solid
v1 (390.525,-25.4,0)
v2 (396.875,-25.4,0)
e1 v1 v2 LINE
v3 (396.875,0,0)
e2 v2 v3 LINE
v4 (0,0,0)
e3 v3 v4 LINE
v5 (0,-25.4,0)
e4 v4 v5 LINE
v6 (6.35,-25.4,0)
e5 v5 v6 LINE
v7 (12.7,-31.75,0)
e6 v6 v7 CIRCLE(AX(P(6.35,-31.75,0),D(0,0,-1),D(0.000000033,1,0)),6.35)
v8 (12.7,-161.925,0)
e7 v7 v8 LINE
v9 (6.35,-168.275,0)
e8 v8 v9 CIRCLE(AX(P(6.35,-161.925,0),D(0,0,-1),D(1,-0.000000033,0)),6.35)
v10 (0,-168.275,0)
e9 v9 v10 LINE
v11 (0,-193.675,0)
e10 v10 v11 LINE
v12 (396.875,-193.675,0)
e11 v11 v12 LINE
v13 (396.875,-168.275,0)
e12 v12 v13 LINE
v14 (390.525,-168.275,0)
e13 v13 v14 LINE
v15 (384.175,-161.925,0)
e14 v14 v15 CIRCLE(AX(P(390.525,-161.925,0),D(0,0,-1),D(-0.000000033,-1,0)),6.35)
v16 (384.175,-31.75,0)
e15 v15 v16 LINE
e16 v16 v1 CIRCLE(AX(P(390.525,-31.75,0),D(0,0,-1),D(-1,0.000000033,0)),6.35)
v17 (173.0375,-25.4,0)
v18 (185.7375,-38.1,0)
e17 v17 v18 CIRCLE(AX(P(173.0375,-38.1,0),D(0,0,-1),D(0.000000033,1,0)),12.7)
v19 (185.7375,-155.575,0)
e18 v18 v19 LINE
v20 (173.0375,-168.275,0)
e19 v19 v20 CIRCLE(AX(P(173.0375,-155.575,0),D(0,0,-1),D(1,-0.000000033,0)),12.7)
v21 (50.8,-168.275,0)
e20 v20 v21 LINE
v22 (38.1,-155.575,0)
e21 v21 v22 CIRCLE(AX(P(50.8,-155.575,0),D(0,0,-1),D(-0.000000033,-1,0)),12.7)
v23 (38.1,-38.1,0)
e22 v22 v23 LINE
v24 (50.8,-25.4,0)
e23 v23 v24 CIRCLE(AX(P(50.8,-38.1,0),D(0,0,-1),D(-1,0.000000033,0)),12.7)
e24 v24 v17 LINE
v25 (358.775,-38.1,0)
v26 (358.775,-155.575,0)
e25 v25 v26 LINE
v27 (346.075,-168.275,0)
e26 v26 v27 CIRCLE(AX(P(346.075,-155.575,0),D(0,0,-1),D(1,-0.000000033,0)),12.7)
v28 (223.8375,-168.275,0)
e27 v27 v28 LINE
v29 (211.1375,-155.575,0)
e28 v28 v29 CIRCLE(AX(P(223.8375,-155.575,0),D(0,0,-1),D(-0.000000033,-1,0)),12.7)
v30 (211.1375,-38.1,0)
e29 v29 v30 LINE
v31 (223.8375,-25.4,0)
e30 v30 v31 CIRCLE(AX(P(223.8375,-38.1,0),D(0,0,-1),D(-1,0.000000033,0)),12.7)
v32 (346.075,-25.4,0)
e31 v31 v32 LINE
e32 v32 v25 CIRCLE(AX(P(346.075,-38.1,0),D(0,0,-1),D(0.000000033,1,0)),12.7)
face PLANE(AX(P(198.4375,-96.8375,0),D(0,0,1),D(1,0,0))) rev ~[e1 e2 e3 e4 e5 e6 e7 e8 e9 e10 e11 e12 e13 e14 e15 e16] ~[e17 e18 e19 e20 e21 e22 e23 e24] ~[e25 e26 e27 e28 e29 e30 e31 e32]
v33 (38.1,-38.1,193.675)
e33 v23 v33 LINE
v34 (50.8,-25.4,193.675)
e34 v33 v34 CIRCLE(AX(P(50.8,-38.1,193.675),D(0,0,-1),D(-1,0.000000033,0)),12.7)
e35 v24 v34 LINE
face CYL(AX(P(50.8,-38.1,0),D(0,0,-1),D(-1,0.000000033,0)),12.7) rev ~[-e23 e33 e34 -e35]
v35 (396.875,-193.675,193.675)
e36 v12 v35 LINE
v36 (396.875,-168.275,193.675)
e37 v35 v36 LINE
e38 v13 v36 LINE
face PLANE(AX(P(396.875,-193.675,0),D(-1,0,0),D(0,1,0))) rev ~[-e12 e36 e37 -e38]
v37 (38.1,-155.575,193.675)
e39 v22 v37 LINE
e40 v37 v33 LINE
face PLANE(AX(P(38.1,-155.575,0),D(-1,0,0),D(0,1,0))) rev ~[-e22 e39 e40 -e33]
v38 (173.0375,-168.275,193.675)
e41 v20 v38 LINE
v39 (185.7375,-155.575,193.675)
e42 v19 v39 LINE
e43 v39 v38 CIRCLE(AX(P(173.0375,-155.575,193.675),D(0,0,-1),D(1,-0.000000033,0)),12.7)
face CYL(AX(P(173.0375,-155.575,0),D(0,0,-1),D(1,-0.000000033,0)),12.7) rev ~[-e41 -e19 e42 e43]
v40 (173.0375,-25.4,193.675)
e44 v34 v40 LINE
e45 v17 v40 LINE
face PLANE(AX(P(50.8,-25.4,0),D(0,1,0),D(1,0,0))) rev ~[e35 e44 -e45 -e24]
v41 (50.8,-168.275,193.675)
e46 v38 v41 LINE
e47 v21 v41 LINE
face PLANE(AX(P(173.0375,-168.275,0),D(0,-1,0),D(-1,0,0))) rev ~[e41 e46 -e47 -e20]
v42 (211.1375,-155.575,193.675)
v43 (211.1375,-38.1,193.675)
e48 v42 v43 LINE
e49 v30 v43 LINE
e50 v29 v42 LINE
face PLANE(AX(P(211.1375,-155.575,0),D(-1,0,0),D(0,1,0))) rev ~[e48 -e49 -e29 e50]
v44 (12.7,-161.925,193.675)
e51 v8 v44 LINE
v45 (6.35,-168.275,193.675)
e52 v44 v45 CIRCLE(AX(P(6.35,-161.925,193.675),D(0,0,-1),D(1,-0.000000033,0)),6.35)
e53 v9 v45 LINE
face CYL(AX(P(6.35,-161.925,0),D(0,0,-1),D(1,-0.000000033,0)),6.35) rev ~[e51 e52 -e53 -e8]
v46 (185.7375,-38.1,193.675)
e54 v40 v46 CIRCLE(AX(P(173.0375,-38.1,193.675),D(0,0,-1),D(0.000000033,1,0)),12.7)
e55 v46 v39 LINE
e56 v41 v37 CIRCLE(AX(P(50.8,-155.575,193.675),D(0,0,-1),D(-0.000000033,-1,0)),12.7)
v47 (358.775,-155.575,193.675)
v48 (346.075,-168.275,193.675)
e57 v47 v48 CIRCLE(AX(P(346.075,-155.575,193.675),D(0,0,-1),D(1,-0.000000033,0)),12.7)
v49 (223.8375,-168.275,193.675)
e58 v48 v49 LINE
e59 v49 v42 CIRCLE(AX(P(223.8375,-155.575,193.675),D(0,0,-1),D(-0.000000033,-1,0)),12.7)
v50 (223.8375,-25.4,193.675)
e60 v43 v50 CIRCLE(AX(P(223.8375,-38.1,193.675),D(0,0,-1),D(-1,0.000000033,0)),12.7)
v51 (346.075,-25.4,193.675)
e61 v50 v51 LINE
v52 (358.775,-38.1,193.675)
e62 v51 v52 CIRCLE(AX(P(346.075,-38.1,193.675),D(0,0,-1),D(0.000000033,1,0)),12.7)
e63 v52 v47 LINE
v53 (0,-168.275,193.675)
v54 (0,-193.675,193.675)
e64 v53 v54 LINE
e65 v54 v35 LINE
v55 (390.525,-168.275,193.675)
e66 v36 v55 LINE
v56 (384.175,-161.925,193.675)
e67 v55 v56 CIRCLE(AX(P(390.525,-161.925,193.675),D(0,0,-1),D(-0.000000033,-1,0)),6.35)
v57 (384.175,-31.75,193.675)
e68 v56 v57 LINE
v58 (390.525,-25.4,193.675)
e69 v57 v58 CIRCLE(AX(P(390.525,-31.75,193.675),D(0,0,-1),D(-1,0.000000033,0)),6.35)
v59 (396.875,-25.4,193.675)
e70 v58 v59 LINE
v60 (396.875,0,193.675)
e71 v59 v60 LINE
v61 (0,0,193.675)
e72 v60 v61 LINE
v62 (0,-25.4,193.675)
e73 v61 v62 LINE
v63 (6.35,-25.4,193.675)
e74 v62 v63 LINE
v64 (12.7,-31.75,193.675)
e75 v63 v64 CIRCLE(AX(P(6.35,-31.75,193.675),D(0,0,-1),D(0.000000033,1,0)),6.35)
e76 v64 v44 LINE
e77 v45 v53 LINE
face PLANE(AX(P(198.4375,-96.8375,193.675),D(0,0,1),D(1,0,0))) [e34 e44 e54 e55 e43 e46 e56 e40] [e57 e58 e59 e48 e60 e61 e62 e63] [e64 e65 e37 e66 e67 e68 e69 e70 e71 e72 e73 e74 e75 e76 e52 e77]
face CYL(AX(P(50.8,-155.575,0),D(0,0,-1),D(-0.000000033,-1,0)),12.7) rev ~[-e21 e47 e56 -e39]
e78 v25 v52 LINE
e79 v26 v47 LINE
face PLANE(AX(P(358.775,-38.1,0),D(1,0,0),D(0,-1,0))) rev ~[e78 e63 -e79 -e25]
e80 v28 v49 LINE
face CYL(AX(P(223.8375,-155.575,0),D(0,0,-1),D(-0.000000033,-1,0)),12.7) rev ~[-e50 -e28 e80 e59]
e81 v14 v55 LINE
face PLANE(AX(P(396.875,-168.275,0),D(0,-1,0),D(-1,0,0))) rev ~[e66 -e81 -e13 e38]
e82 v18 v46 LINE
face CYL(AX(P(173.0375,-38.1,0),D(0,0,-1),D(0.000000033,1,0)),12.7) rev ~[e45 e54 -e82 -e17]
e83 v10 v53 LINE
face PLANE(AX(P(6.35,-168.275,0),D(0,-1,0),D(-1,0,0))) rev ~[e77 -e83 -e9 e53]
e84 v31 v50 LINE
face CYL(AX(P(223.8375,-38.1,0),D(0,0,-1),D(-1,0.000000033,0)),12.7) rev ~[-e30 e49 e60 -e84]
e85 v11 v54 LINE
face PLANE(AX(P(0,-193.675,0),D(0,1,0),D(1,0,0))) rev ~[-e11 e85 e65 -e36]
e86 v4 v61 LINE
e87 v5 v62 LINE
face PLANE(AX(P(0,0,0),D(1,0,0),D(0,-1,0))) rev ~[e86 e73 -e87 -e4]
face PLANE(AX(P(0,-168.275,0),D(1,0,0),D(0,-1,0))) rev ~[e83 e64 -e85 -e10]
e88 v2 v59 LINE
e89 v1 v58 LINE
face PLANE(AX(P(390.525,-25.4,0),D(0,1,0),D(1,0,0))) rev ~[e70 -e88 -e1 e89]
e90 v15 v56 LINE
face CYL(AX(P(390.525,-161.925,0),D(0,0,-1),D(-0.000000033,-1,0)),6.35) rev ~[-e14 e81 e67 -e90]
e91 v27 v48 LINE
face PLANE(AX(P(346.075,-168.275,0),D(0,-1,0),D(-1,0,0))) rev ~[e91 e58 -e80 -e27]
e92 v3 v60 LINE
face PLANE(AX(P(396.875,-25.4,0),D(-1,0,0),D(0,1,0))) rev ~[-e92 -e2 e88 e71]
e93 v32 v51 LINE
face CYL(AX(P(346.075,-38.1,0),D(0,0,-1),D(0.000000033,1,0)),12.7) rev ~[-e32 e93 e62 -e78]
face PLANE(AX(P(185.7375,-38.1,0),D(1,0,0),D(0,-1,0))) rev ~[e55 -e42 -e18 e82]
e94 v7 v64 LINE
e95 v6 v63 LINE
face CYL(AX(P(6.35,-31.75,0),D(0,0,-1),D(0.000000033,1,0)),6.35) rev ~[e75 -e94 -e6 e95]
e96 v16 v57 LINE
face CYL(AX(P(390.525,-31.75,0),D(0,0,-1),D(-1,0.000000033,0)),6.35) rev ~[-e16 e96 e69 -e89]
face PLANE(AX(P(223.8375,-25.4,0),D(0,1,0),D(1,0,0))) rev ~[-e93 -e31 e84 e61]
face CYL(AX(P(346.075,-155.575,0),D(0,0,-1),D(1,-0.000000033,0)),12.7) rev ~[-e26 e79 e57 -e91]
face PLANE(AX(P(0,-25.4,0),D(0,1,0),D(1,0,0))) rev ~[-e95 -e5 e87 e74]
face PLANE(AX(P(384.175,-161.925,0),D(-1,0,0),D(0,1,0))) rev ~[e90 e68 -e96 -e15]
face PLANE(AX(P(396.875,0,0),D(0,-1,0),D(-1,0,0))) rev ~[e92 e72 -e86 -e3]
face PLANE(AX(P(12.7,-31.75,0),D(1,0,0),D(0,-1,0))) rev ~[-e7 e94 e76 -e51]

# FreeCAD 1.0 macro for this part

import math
import FreeCAD as App
import Part
import Sketcher
from FreeCAD import Vector
Q = App.Units.Quantity

doc = App.newDocument("Part")
body = doc.addObject("PartDesign::Body", "Body")

# Sketch on XY plane
sketch1 = body.newObject("Sketcher::SketchObject", "Sketch")
sketch1.AttachmentSupport = (doc.getObject("XY_Plane"), [""])
sketch1.MapMode = "FlatFace"
sketch1.addGeometry([
    Part.LineSegment(Vector(397, 0, 0), Vector(0, 0, 0)),  # 0
    Part.LineSegment(Vector(0, 0, 0), Vector(0, -25, 0)),  # 1
    Part.LineSegment(Vector(0, -25, 0), Vector(6, -25, 0)),  # 2
    Part.ArcOfCircle(Part.Circle(Vector(6, -32, 0), Vector(0, 0, 1), 6), math.radians(0), math.radians(90)),  # 3
    Part.LineSegment(Vector(13, -32, 0), Vector(13, -162, 0)),  # 4
    Part.ArcOfCircle(Part.Circle(Vector(6, -162, 0), Vector(0, 0, 1), 6), math.radians(-90), math.radians(0)),  # 5
    Part.LineSegment(Vector(6, -168, 0), Vector(0, -168, 0)),  # 6
    Part.LineSegment(Vector(0, -168, 0), Vector(0, -194, 0)),  # 7
    Part.LineSegment(Vector(0, -194, 0), Vector(397, -194, 0)),  # 8
    Part.LineSegment(Vector(397, -194, 0), Vector(397, -168, 0)),  # 9
    Part.LineSegment(Vector(397, -168, 0), Vector(391, -168, 0)),  # 10
    Part.ArcOfCircle(Part.Circle(Vector(391, -162, 0), Vector(0, 0, 1), 6), math.radians(-180), math.radians(-90)),  # 11
    Part.LineSegment(Vector(384, -162, 0), Vector(384, -32, 0)),  # 12
    Part.ArcOfCircle(Part.Circle(Vector(391, -32, 0), Vector(0, 0, 1), 6), math.radians(90), math.radians(180)),  # 13
    Part.LineSegment(Vector(391, -25, 0), Vector(397, -25, 0)),  # 14
    Part.LineSegment(Vector(397, -25, 0), Vector(397, 0, 0)),  # 15
    Part.ArcOfCircle(Part.Circle(Vector(51, -156, 0), Vector(0, 0, 1), 13), math.radians(-180), math.radians(-90)),  # 16
    Part.LineSegment(Vector(38, -156, 0), Vector(38, -38, 0)),  # 17
    Part.ArcOfCircle(Part.Circle(Vector(51, -38, 0), Vector(0, 0, 1), 13), math.radians(90), math.radians(180)),  # 18
    Part.LineSegment(Vector(51, -25, 0), Vector(173, -25, 0)),  # 19
    Part.ArcOfCircle(Part.Circle(Vector(173, -38, 0), Vector(0, 0, 1), 13), math.radians(0), math.radians(90)),  # 20
    Part.LineSegment(Vector(186, -38, 0), Vector(186, -156, 0)),  # 21
    Part.ArcOfCircle(Part.Circle(Vector(173, -156, 0), Vector(0, 0, 1), 13), math.radians(-90), math.radians(0)),  # 22
    Part.LineSegment(Vector(173, -168, 0), Vector(51, -168, 0)),  # 23
    Part.LineSegment(Vector(359, -38, 0), Vector(359, -156, 0)),  # 24
    Part.ArcOfCircle(Part.Circle(Vector(346, -156, 0), Vector(0, 0, 1), 13), math.radians(-90), math.radians(0)),  # 25
    Part.LineSegment(Vector(346, -168, 0), Vector(224, -168, 0)),  # 26
    Part.ArcOfCircle(Part.Circle(Vector(224, -156, 0), Vector(0, 0, 1), 13), math.radians(-180), math.radians(-90)),  # 27
    Part.LineSegment(Vector(211, -156, 0), Vector(211, -38, 0)),  # 28
    Part.ArcOfCircle(Part.Circle(Vector(224, -38, 0), Vector(0, 0, 1), 13), math.radians(90), math.radians(180)),  # 29
    Part.LineSegment(Vector(224, -25, 0), Vector(346, -25, 0)),  # 30
    Part.ArcOfCircle(Part.Circle(Vector(346, -38, 0), Vector(0, 0, 1), 13), math.radians(0), math.radians(90)),  # 31
], False)
sketch1.addConstraint([
    Sketcher.Constraint("Coincident", 0, 2, 1, 1),
    Sketcher.Constraint("Coincident", 1, 2, 2, 1),
    Sketcher.Constraint("Tangent", 2, 2, 3, 2),
    Sketcher.Constraint("Tangent", 3, 1, 4, 1),
    Sketcher.Constraint("Tangent", 4, 2, 5, 2),
    Sketcher.Constraint("Tangent", 5, 1, 6, 1),
    Sketcher.Constraint("Coincident", 6, 2, 7, 1),
    Sketcher.Constraint("Coincident", 7, 2, 8, 1),
    Sketcher.Constraint("Coincident", 8, 2, 9, 1),
    Sketcher.Constraint("Coincident", 9, 2, 10, 1),
    Sketcher.Constraint("Tangent", 10, 2, 11, 2),
    Sketcher.Constraint("Tangent", 11, 1, 12, 1),
    Sketcher.Constraint("Tangent", 12, 2, 13, 2),
    Sketcher.Constraint("Tangent", 13, 1, 14, 1),
    Sketcher.Constraint("Coincident", 14, 2, 15, 1),
    Sketcher.Constraint("Coincident", 15, 2, 0, 1),
    Sketcher.Constraint("Tangent", 16, 1, 17, 1),
    Sketcher.Constraint("Tangent", 17, 2, 18, 2),
    Sketcher.Constraint("Tangent", 18, 1, 19, 1),
    Sketcher.Constraint("Tangent", 19, 2, 20, 2),
    Sketcher.Constraint("Tangent", 20, 1, 21, 1),
    Sketcher.Constraint("Tangent", 21, 2, 22, 2),
    Sketcher.Constraint("Tangent", 22, 1, 23, 1),
    Sketcher.Constraint("Tangent", 23, 2, 16, 2),
    Sketcher.Constraint("Tangent", 24, 2, 25, 2),
    Sketcher.Constraint("Tangent", 25, 1, 26, 1),
    Sketcher.Constraint("Tangent", 26, 2, 27, 2),
    Sketcher.Constraint("Tangent", 27, 1, 28, 1),
    Sketcher.Constraint("Tangent", 28, 2, 29, 2),
    Sketcher.Constraint("Tangent", 29, 1, 30, 1),
    Sketcher.Constraint("Tangent", 30, 2, 31, 2),
    Sketcher.Constraint("Tangent", 31, 1, 24, 1),
    Sketcher.Constraint("Horizontal", 0),
    Sketcher.Constraint("Vertical", 1),
    Sketcher.Constraint("Horizontal", 2),
    Sketcher.Constraint("Vertical", 4),
    Sketcher.Constraint("Horizontal", 6),
    Sketcher.Constraint("Vertical", 7),
    Sketcher.Constraint("Horizontal", 8),
    Sketcher.Constraint("Vertical", 9),
    Sketcher.Constraint("Horizontal", 10),
    Sketcher.Constraint("Vertical", 12),
    Sketcher.Constraint("Horizontal", 14),
    Sketcher.Constraint("Vertical", 15),
    Sketcher.Constraint("Vertical", 17),
    Sketcher.Constraint("Horizontal", 19),
    Sketcher.Constraint("Vertical", 21),
    Sketcher.Constraint("Horizontal", 23),
    Sketcher.Constraint("Vertical", 24),
    Sketcher.Constraint("Horizontal", 26),
    Sketcher.Constraint("Vertical", 28),
    Sketcher.Constraint("Horizontal", 30),
    Sketcher.Constraint("Coincident", 0, 2, -1, 1),
    Sketcher.Constraint("Equal", 3, 5),
    Sketcher.Constraint("Equal", 5, 11),
    Sketcher.Constraint("Equal", 11, 13),
    Sketcher.Constraint("Equal", 16, 18),
    Sketcher.Constraint("Equal", 18, 20),
    Sketcher.Constraint("Equal", 20, 22),
    Sketcher.Constraint("Equal", 22, 25),
    Sketcher.Constraint("Equal", 25, 27),
    Sketcher.Constraint("Equal", 27, 29),
    Sketcher.Constraint("Equal", 29, 31),
    Sketcher.Constraint("PointOnObject", 6, 2, -2),
    Sketcher.Constraint("Horizontal", 5, 3, 11, 3),
    Sketcher.Constraint("Horizontal", 3, 3, 13, 3),
    Sketcher.Constraint("Horizontal", 22, 3, 25, 3),
    Sketcher.Constraint("Horizontal", 20, 3, 29, 3),
    Sketcher.Constraint("Horizontal", 14, 2, 18, 1),
    Sketcher.Constraint("Horizontal", 10, 2, 22, 1),
    Sketcher.Constraint("Vertical", 9, 2, 14, 2),
    Sketcher.Constraint("Equal", 6, 10),
    Sketcher.Constraint("Equal", 23, 26),
    Sketcher.Constraint("Equal", 1, 7),
    Sketcher.Constraint("Radius", 16, Q("0.5 in")),
    Sketcher.Constraint("DistanceY", 1, 2, 1, 1, Q("1 in")),
    Sketcher.Constraint("Radius", 3, Q("0.25 in")),
    Sketcher.Constraint("DistanceX", -1, 1, 16, 3, Q("2 in")),
    Sketcher.Constraint("DistanceX", 22, 3, 27, 3, Q("2 in")),
    Sketcher.Constraint("DistanceX", 25, 3, 8, 2, Q("2 in")),
    Sketcher.Constraint("DistanceX", 4, 2, 16, 1, Q("1 in")),
    Sketcher.Constraint("DistanceX", 0, 2, 0, 1, Q("15.625 in")),
    Sketcher.Constraint("DistanceY", 4, 2, 4, 1, Q("5.125 in")),
])
pad1 = body.newObject("PartDesign::Pad", "Pad")
pad1.Profile = sketch1
pad1.Length = Q("7.625 in")

doc.recompute()
